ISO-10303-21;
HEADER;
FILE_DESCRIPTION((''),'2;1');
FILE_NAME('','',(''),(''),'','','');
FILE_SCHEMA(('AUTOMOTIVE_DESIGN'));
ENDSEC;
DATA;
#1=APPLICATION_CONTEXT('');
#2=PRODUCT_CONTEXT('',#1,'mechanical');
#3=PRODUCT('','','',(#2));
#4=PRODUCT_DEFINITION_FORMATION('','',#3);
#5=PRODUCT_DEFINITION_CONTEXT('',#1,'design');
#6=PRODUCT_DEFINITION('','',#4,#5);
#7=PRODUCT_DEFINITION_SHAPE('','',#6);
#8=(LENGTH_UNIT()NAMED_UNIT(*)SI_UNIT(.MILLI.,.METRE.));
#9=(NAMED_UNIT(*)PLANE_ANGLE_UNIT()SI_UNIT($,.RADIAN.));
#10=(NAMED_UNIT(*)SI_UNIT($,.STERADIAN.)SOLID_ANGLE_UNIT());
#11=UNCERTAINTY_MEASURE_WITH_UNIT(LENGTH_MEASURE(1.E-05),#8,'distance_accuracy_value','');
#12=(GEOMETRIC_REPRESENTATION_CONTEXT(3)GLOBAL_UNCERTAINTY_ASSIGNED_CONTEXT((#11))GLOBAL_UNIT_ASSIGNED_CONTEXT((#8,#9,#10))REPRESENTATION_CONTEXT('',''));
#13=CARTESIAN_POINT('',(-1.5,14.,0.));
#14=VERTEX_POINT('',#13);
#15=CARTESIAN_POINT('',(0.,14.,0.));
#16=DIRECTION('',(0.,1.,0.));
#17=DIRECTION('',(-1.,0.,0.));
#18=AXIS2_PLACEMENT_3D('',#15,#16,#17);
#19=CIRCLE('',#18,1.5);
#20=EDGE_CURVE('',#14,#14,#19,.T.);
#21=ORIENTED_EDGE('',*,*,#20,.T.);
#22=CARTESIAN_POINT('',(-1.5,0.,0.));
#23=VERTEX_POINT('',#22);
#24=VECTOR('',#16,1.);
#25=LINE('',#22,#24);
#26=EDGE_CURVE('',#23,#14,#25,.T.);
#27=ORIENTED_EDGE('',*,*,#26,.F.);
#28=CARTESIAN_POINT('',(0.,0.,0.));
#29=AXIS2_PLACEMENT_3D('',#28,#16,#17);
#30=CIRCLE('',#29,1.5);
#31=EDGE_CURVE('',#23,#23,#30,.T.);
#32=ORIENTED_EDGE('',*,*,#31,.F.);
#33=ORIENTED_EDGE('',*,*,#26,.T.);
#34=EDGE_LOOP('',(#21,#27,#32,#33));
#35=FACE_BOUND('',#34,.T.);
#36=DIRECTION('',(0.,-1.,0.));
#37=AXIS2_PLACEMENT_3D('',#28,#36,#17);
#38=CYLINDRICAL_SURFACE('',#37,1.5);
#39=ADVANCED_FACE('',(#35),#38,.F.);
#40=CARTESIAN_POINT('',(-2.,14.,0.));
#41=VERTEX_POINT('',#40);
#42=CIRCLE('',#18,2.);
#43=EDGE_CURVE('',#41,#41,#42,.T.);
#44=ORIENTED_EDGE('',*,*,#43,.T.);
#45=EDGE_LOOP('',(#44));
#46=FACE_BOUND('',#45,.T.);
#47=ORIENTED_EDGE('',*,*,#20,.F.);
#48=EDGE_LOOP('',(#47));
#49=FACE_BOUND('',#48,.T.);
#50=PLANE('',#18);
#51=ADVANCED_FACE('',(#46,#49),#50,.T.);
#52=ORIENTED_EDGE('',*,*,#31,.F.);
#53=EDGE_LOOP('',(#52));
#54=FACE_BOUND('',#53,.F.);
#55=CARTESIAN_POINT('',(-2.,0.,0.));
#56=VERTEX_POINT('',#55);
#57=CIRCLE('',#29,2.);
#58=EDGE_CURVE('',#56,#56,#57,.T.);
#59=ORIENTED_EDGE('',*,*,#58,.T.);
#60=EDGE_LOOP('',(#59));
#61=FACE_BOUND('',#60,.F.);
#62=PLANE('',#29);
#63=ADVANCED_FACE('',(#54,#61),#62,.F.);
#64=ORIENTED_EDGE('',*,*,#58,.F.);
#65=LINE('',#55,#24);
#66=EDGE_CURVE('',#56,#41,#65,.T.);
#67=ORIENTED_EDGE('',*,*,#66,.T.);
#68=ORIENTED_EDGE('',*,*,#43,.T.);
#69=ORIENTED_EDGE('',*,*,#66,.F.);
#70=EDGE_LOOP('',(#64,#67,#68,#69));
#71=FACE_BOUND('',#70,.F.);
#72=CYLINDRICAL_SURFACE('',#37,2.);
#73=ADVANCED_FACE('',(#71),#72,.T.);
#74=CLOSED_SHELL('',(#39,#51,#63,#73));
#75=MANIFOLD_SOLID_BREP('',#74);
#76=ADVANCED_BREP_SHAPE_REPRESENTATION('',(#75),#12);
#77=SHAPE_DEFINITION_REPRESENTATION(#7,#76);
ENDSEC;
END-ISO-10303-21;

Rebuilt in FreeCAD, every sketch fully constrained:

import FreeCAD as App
import Part
import Sketcher

V = App.Vector
Q = App.Units.Quantity

doc = App.newDocument("Part")
params = doc.addObject("Spreadsheet::Sheet", "Params")
for row, (alias, value) in enumerate([
    ("sketch1_diameter", "4 mm"),
    ("sketch1_diameter2", "3 mm"),
    ("pad1_length", "14 mm"),
], start=1):
    params.set(f"A{row}", alias)
    params.set(f"B{row}", "=" + value)
    params.setAlias(f"B{row}", alias)

body = doc.addObject("PartDesign::Body", "Body")

# Sketch on XZ plane
sketch1 = doc.addObject("Sketcher::SketchObject", "Sketch")
body.addObject(sketch1)
sketch1.AttachmentSupport = (doc.XZ_Plane, [""])
sketch1.MapMode = "FlatFace"
sketch1.addGeometry(Part.Circle(V(0, 0, 0), V(0, 0, 1), 2), False)
sketch1.addGeometry(Part.Circle(V(0, 0, 0), V(0, 0, 1), 1.5), False)
sketch1.addConstraint(Sketcher.Constraint("Coincident", 0, 3, -1, 1))
sketch1.addConstraint(Sketcher.Constraint("Coincident", 1, 3, -1, 1))
sketch1.addConstraint(Sketcher.Constraint("Diameter", 0, Q("4 mm")))
sketch1.addConstraint(Sketcher.Constraint("Diameter", 1, Q("3 mm")))
sketch1.setExpression("Constraints[2]", "Params.sketch1_diameter")
sketch1.setExpression("Constraints[3]", "Params.sketch1_diameter2")
pad1 = doc.addObject("PartDesign::Pad", "Pad")
body.addObject(pad1)
pad1.Profile = sketch1
pad1.setExpression("Length", "Params.pad1_length")
pad1.Reversed = True

doc.recompute()
